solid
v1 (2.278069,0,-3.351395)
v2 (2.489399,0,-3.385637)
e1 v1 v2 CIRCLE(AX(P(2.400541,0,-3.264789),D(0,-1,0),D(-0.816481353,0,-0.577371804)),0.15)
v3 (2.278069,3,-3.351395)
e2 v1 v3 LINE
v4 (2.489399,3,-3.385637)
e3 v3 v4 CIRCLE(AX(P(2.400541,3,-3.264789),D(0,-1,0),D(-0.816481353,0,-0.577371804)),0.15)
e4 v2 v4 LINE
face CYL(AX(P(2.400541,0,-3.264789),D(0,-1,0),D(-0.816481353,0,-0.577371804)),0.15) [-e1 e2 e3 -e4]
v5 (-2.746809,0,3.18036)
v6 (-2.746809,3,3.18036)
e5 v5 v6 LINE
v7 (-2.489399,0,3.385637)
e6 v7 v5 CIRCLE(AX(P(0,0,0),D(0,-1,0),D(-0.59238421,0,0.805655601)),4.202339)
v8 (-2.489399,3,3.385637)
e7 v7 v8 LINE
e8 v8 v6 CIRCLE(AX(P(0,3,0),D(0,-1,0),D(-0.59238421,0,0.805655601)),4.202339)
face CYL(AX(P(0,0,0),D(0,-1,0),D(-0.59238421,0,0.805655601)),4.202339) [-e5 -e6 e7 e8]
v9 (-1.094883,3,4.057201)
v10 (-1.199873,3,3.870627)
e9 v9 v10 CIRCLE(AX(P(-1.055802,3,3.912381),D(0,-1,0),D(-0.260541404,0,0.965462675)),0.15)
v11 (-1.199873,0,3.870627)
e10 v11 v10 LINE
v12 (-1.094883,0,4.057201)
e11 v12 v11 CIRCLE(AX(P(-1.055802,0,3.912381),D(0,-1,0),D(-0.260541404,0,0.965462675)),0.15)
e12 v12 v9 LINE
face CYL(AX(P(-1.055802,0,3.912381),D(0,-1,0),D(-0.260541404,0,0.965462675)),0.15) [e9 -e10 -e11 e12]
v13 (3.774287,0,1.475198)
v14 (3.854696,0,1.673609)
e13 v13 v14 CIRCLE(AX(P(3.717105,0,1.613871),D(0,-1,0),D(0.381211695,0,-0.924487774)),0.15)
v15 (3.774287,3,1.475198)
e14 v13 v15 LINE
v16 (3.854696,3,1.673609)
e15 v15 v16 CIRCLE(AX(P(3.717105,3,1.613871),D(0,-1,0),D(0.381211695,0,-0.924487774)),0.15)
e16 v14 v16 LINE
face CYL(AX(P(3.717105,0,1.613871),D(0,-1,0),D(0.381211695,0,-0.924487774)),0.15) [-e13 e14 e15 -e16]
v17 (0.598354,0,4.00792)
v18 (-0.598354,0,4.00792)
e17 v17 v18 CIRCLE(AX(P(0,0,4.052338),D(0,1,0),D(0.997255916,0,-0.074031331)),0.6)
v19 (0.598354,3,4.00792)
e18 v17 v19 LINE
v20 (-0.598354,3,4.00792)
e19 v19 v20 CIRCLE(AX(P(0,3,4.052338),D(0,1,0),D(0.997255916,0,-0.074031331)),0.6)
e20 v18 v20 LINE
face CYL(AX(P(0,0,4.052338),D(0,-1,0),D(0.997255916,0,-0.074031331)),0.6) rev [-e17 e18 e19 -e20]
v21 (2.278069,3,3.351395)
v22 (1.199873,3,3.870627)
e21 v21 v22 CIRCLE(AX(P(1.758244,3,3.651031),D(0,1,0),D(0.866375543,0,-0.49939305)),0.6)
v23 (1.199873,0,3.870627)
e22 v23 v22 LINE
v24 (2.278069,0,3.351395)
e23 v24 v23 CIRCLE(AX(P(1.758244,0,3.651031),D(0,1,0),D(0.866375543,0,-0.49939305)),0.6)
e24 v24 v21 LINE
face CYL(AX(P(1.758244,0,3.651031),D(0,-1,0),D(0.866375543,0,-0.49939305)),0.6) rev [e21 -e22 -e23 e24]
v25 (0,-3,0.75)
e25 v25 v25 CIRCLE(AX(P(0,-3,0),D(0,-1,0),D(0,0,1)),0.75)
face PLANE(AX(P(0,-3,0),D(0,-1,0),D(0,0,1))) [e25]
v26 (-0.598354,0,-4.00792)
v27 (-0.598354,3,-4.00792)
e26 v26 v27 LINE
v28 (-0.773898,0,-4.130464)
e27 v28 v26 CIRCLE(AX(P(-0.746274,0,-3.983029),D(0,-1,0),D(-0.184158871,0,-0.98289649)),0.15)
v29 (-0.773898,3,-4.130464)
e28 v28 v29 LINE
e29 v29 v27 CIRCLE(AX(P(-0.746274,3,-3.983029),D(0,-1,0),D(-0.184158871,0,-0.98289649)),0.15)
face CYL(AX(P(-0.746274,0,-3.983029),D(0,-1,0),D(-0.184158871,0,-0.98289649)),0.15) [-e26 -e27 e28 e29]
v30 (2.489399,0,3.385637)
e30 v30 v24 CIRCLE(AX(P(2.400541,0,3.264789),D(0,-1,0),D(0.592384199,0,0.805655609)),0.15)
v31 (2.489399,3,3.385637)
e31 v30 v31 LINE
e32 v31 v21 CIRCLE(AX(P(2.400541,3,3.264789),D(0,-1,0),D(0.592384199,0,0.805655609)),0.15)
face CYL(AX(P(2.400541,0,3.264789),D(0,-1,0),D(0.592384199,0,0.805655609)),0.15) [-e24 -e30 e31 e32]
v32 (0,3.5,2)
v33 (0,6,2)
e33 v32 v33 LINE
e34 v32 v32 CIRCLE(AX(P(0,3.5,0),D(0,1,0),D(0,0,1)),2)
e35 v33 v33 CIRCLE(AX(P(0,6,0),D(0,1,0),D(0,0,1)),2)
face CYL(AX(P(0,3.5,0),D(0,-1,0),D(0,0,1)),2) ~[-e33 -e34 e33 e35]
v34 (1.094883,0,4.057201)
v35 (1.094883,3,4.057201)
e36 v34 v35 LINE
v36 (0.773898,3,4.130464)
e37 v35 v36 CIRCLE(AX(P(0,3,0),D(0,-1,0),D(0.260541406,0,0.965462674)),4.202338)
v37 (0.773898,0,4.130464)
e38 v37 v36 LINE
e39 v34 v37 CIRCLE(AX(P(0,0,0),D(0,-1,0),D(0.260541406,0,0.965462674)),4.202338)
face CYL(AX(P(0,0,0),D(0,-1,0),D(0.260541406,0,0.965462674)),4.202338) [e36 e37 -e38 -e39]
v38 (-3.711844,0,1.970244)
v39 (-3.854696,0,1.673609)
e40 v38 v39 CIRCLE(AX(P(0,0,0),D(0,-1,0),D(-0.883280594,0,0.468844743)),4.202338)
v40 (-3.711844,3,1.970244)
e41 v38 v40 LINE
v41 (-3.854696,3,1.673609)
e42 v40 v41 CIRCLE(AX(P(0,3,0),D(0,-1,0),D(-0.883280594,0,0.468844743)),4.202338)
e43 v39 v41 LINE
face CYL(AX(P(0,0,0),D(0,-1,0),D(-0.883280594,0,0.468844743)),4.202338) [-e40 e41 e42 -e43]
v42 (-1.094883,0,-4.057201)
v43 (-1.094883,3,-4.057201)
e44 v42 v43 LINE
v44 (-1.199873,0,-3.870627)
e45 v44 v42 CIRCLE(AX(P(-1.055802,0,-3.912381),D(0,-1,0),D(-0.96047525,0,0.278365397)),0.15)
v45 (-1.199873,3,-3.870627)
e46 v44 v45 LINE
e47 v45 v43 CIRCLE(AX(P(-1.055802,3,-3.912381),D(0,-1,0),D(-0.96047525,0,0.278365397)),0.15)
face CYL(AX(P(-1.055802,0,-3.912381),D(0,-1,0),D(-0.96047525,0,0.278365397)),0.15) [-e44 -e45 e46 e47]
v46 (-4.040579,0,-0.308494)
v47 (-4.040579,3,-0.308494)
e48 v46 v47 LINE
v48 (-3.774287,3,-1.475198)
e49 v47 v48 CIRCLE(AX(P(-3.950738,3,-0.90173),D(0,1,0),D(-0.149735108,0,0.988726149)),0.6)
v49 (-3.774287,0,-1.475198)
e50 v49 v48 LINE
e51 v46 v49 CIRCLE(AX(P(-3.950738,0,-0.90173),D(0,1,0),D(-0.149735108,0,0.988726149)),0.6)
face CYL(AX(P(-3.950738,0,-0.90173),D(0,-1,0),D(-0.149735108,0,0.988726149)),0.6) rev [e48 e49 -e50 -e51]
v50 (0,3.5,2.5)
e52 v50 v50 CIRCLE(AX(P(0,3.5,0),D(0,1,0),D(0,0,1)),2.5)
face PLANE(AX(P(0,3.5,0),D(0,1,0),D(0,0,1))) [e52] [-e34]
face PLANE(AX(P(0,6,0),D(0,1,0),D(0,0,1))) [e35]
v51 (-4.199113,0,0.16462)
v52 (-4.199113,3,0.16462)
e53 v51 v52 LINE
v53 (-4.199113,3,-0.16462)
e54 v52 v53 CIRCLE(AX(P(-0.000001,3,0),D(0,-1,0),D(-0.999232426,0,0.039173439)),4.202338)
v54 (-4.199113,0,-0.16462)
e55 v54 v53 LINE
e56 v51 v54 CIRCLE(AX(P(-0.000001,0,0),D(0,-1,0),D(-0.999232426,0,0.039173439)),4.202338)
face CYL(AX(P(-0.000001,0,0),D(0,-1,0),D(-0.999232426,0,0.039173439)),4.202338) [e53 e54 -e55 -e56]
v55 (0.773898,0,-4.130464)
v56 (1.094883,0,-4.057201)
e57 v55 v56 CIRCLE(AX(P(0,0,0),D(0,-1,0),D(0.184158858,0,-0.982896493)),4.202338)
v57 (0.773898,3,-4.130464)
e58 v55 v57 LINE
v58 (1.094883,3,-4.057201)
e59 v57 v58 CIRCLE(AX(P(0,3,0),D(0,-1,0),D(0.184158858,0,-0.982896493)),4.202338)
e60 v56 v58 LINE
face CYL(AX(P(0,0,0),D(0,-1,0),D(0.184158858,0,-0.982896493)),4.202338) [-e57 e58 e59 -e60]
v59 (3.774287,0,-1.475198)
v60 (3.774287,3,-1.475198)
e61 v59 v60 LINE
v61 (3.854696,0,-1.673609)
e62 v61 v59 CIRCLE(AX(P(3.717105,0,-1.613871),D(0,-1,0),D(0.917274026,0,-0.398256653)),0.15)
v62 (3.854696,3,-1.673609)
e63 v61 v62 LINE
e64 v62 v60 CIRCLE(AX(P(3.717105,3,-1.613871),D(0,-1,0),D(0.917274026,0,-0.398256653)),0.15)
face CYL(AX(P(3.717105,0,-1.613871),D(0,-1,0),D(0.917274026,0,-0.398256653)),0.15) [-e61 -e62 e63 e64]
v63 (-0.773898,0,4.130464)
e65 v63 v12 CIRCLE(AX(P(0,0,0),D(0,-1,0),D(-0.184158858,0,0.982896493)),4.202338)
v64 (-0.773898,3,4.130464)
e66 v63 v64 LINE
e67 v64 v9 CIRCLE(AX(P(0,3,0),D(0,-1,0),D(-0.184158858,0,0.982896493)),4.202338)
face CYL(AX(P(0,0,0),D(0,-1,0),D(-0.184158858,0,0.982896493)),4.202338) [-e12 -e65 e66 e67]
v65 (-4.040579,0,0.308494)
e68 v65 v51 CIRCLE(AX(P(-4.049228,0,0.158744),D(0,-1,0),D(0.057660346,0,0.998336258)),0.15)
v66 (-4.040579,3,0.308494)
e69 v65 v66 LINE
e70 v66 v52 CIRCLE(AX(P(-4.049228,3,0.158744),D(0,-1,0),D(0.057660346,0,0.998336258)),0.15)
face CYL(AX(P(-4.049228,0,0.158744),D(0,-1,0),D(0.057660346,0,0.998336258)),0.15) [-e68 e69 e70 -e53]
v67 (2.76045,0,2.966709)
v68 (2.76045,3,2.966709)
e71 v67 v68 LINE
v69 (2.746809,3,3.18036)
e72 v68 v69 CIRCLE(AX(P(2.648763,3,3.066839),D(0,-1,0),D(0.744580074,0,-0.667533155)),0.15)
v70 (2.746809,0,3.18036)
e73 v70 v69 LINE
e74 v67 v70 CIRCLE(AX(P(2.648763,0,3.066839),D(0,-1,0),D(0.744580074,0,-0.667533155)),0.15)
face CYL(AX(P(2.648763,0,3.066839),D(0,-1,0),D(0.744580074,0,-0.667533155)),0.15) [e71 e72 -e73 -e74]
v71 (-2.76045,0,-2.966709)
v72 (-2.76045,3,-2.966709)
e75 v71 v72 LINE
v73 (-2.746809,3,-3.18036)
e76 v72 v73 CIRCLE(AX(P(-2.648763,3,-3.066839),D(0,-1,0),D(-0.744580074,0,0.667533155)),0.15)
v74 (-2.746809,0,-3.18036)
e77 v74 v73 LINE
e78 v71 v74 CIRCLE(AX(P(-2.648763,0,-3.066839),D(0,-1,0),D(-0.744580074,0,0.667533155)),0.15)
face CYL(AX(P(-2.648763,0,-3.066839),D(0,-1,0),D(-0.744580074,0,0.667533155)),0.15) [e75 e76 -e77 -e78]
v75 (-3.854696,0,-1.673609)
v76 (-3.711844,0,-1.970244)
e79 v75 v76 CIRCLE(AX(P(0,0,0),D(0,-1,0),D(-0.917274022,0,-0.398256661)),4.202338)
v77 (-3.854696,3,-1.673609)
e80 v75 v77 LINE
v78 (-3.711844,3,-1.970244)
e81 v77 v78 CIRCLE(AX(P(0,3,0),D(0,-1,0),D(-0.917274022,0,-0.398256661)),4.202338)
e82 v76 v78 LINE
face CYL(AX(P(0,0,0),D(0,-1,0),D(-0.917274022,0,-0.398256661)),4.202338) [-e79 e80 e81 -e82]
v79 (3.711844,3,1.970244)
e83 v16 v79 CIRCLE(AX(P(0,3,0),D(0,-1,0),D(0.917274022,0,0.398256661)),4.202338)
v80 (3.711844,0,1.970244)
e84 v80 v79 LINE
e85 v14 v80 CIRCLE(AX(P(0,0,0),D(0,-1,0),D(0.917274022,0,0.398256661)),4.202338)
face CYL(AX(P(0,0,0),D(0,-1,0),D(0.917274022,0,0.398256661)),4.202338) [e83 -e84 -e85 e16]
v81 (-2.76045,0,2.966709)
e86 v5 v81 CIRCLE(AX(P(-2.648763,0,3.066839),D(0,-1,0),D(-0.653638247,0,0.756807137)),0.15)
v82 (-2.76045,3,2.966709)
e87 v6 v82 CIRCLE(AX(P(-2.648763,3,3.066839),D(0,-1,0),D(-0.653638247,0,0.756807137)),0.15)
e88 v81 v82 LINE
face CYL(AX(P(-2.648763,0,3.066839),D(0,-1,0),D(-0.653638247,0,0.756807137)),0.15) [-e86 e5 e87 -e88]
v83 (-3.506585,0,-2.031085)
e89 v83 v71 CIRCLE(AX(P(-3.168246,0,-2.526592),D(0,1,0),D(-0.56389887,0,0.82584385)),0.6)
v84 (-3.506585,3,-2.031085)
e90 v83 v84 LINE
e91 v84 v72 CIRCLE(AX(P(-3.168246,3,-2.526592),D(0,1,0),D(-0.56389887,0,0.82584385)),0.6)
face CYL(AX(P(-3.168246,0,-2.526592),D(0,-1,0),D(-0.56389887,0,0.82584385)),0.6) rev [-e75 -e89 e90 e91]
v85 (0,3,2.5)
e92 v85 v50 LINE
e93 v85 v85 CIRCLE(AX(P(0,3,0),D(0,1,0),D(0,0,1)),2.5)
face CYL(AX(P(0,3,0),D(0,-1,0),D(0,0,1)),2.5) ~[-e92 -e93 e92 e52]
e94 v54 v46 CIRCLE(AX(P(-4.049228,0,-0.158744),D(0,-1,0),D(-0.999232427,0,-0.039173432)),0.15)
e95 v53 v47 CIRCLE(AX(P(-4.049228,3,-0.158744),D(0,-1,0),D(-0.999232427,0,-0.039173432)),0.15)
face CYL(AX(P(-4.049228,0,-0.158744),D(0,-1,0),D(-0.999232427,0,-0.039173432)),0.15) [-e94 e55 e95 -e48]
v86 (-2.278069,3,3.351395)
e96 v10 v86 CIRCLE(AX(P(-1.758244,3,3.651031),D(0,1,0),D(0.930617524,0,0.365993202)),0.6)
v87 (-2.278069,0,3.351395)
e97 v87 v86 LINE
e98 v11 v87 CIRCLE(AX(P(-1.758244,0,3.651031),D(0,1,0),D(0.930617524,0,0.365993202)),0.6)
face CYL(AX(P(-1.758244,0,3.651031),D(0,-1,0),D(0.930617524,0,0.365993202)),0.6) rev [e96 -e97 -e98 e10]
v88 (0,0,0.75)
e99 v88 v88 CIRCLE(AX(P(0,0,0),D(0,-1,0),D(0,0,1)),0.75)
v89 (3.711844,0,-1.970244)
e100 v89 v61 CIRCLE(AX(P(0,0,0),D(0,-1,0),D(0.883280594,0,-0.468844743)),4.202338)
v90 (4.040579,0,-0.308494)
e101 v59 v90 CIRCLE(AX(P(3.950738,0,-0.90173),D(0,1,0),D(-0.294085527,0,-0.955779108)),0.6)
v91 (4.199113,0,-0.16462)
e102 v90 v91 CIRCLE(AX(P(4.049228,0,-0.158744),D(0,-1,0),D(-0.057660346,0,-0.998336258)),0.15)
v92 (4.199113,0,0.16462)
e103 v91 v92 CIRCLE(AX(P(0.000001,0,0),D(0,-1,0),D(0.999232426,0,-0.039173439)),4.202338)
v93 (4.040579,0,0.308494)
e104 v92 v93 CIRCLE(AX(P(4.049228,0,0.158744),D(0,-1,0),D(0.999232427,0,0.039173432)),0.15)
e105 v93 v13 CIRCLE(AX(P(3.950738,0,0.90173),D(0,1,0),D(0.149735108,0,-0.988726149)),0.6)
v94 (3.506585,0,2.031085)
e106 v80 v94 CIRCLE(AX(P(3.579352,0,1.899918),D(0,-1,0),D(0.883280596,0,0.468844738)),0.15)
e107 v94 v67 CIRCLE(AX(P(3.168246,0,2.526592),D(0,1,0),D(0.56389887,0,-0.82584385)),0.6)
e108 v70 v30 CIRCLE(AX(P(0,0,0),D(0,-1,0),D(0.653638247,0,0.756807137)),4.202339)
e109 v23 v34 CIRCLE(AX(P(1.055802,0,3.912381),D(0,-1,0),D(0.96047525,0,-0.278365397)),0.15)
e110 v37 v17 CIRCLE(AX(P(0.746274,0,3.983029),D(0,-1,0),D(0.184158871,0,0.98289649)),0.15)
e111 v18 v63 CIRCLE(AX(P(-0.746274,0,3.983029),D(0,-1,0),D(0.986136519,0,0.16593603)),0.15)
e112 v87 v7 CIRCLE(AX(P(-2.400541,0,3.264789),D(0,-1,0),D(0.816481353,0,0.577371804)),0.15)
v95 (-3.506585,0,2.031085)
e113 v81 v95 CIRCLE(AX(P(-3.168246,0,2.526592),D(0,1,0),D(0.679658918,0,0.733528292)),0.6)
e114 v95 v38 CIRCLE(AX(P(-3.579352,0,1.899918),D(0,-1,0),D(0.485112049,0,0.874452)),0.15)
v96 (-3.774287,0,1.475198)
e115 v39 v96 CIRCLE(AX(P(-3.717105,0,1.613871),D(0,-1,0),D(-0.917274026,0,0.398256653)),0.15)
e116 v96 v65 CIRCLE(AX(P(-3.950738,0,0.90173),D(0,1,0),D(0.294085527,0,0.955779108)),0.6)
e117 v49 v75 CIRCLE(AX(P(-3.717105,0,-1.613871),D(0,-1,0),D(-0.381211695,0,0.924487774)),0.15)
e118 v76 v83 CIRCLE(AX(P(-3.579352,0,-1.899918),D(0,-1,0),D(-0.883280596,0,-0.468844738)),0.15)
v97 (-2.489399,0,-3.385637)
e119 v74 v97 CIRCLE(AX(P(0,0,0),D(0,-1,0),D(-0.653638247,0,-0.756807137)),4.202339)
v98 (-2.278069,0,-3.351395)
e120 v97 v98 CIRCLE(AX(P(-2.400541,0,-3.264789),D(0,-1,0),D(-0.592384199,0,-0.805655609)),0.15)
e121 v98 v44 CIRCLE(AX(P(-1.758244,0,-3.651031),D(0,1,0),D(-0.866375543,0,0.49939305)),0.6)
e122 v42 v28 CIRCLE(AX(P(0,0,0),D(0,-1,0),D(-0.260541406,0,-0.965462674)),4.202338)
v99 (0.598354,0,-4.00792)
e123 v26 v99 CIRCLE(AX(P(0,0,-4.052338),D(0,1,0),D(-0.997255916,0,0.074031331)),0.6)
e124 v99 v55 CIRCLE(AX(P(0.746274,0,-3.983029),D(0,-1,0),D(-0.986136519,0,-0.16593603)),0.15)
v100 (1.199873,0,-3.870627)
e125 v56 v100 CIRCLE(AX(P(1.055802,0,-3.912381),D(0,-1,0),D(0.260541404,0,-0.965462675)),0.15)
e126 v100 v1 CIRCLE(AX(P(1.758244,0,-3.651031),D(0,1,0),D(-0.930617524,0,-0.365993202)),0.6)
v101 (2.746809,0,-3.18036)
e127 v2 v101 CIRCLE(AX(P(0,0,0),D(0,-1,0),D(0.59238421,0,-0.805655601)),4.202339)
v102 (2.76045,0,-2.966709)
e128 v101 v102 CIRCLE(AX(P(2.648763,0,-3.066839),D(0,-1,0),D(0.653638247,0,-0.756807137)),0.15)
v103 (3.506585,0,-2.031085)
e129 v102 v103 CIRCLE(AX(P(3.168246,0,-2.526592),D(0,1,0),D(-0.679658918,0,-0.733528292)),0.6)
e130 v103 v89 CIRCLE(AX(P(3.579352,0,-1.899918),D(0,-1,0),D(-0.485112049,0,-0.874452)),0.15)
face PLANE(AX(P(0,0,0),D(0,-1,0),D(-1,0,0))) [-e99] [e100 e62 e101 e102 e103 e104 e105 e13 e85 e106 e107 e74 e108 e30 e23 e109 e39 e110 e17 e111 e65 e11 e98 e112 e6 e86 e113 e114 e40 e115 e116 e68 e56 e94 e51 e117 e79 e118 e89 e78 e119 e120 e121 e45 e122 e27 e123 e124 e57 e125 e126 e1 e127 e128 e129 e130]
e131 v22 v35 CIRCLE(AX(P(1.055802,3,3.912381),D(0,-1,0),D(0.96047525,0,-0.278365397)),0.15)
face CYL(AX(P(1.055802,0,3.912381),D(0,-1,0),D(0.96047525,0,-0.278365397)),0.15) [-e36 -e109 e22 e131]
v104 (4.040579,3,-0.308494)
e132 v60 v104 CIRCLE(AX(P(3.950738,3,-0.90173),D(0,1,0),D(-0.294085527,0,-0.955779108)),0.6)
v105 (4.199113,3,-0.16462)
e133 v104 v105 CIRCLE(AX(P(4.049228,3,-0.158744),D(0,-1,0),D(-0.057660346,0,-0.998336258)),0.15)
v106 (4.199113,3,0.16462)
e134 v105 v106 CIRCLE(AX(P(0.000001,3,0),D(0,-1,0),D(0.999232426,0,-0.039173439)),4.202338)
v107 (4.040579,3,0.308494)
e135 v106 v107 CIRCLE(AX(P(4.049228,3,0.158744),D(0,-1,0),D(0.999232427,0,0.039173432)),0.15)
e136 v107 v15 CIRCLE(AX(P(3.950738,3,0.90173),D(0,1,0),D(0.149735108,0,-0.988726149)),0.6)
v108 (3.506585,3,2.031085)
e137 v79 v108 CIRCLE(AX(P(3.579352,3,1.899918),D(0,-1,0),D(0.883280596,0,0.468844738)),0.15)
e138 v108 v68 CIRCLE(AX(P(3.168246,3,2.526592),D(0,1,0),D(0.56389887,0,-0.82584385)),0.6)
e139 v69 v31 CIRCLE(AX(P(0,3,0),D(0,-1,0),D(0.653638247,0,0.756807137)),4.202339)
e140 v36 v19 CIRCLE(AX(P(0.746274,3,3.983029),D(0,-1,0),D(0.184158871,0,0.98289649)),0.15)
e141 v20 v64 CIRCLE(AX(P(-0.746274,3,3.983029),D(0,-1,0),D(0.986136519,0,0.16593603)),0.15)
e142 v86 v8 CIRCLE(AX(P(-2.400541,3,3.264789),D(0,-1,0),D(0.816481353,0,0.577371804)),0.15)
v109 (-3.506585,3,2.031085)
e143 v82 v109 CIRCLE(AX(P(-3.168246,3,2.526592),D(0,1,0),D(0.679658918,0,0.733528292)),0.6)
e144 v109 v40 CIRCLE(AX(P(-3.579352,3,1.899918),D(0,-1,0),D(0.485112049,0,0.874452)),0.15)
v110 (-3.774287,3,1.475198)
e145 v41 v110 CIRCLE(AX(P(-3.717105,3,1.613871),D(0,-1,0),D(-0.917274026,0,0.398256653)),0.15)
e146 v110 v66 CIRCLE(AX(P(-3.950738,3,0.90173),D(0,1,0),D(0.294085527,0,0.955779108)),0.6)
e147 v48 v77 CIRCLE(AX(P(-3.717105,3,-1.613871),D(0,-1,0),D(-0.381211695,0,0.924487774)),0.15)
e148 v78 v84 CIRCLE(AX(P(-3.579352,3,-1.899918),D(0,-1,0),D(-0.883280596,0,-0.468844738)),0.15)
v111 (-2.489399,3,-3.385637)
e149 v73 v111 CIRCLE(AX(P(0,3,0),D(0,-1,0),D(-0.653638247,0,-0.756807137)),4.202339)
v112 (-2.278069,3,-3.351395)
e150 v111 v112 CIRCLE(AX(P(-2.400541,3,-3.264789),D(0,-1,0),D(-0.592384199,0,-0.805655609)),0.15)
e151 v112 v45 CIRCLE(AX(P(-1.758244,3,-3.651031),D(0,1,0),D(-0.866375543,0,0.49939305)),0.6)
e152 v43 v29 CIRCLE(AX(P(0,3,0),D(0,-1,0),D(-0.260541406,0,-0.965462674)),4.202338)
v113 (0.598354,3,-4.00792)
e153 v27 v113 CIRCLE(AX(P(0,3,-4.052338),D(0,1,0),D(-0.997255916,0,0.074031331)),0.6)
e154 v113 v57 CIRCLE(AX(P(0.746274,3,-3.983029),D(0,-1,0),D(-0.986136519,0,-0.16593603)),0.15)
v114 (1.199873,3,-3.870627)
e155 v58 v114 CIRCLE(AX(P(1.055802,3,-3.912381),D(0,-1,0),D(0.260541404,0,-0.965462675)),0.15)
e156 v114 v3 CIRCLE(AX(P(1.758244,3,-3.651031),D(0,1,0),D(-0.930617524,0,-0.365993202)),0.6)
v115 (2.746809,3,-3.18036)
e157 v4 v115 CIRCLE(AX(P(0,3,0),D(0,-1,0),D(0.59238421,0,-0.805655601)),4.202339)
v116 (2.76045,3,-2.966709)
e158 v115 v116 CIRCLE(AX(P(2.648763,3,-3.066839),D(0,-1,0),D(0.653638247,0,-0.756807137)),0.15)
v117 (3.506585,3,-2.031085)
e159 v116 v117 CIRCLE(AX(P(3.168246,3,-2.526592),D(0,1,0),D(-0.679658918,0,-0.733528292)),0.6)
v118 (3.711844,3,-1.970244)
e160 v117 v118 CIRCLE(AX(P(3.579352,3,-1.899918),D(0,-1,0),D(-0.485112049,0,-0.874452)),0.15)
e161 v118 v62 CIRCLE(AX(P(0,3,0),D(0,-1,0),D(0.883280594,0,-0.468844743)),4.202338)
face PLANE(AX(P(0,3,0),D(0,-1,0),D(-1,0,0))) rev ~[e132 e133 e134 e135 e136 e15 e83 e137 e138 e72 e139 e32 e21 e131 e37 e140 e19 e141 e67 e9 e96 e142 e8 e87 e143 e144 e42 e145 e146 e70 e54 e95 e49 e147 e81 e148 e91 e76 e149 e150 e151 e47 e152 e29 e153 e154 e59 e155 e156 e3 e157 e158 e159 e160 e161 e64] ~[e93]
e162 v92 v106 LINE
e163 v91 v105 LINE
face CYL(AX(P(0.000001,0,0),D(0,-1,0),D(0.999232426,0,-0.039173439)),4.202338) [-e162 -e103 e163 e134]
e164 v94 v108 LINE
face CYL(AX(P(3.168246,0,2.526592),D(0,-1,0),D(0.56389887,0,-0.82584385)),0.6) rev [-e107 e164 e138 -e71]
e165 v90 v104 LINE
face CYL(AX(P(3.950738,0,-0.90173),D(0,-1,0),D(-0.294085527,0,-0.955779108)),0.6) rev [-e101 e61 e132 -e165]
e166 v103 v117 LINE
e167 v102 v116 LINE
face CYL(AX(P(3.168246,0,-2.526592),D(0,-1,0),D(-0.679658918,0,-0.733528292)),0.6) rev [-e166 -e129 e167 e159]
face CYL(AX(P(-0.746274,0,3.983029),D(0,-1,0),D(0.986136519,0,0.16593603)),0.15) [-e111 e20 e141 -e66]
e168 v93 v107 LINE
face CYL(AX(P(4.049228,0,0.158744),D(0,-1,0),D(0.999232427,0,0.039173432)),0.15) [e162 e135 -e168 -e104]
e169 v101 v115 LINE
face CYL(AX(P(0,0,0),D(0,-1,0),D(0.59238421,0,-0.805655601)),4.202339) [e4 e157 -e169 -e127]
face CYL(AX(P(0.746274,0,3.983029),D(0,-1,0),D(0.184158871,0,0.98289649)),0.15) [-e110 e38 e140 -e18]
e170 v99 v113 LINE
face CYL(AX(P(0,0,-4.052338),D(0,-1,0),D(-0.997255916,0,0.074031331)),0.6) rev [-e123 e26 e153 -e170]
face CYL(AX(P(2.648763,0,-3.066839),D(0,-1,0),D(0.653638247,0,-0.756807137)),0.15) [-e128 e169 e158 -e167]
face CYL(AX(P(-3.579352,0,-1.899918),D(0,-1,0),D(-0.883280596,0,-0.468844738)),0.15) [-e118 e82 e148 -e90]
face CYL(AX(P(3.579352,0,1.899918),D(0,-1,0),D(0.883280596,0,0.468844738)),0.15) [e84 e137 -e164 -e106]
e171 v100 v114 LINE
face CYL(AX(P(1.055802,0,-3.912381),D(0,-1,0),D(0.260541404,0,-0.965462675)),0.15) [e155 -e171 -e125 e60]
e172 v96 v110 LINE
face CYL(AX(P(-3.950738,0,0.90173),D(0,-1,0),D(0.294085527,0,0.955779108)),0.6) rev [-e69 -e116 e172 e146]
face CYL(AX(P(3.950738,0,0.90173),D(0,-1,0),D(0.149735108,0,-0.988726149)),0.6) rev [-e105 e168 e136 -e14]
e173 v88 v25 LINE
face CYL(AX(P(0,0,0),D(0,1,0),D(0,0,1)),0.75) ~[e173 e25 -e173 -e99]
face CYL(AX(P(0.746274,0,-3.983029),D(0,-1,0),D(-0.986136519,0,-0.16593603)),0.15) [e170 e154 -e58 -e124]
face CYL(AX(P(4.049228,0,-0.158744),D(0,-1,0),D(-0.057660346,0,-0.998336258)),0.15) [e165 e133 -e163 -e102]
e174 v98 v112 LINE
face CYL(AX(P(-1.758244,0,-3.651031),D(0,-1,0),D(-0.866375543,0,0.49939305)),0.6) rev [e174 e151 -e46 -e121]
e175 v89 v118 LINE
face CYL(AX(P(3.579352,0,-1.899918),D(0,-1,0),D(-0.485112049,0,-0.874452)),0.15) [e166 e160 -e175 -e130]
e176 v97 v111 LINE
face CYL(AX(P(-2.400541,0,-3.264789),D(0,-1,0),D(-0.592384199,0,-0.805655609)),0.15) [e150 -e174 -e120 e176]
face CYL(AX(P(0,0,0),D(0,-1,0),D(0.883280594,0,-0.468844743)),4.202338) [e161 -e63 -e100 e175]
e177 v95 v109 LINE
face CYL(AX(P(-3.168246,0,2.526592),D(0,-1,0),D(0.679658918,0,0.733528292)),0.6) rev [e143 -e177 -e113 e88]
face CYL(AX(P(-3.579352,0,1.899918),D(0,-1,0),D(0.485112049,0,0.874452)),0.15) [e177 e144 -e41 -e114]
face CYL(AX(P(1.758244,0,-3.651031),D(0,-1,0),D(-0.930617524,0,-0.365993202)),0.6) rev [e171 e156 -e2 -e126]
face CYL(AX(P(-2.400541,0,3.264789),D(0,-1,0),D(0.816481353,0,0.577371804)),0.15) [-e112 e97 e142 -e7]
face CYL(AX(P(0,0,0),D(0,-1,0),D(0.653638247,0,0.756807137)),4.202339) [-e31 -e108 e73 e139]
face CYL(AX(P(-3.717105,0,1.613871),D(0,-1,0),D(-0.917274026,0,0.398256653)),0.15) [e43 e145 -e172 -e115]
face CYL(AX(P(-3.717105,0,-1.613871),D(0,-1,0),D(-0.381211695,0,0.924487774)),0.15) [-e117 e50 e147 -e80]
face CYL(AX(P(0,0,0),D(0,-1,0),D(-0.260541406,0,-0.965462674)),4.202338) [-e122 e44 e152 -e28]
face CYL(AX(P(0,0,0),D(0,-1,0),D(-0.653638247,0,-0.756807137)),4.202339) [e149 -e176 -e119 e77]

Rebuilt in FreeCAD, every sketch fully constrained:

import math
import FreeCAD as App
import Part
import Sketcher
from FreeCAD import Vector

doc = App.newDocument("Part")
body = doc.addObject("PartDesign::Body", "Body")

# Sketch on XZ plane
sketch1 = doc.addObject("Sketcher::SketchObject", "Sketch")
body.addObject(sketch1)
sketch1.AttachmentSupport = (doc.XZ_Plane, [""])
sketch1.MapMode = "FlatFace"
sketch1.addGeometry([
    Part.ArcOfCircle(Part.Circle(Vector(0.746274, -3.983029, 0), Vector(0, 0, 1), 0.15), math.radians(-170.448385), math.radians(-79.387903)),  # 0
    Part.ArcOfCircle(Part.Circle(Vector(0, -4.052338, 0), Vector(0, 0, 1), 0.6), math.radians(4.245567), math.radians(175.754433)),  # 1
    Part.ArcOfCircle(Part.Circle(Vector(-0.746274, -3.983029, 0), Vector(0, 0, 1), 0.15), math.radians(-100.612097), math.radians(-9.551615)),  # 2
    Part.ArcOfCircle(Part.Circle(Vector(0, 0, 0), Vector(0, 0, 1), 4.202338), math.radians(-105.10219), math.radians(-100.612096)),  # 3
    Part.ArcOfCircle(Part.Circle(Vector(-1.055802, -3.912381, 0), Vector(0, 0, 1), 0.15), math.radians(163.837329), math.radians(254.89781)),  # 4
    Part.ArcOfCircle(Part.Circle(Vector(-1.758244, -3.651031, 0), Vector(0, 0, 1), 0.6), math.radians(-21.468719), math.radians(150.040147)),  # 5
    Part.ArcOfCircle(Part.Circle(Vector(-2.400541, -3.264789, 0), Vector(0, 0, 1), 0.15), math.radians(-126.326381), math.radians(-35.265901)),  # 6
    Part.ArcOfCircle(Part.Circle(Vector(0, 0, 0), Vector(0, 0, 1), 4.202339), math.radians(-130.816475), math.radians(-126.326382)),  # 7
    Part.ArcOfCircle(Part.Circle(Vector(-2.648763, -3.066839, 0), Vector(0, 0, 1), 0.15), math.radians(138.123043), math.radians(229.183525)),  # 8
    Part.ArcOfCircle(Part.Circle(Vector(-3.168246, -2.526592, 0), Vector(0, 0, 1), 0.6), math.radians(-47.183005), math.radians(124.325862)),  # 9
    Part.ArcOfCircle(Part.Circle(Vector(-3.579352, -1.899918, 0), Vector(0, 0, 1), 0.15), math.radians(-152.040668), math.radians(-60.980186)),  # 10
    Part.ArcOfCircle(Part.Circle(Vector(0, 0, 0), Vector(0, 0, 1), 4.202338), math.radians(-156.530761), math.radians(-152.040668)),  # 11
    Part.ArcOfCircle(Part.Circle(Vector(-3.717105, -1.613871, 0), Vector(0, 0, 1), 0.15), math.radians(112.408758), math.radians(203.469238)),  # 12
    Part.ArcOfCircle(Part.Circle(Vector(-3.950738, -0.90173, 0), Vector(0, 0, 1), 0.6), math.radians(-72.89729), math.radians(98.611576)),  # 13
    Part.ArcOfCircle(Part.Circle(Vector(-4.049228, -0.158744, 0), Vector(0, 0, 1), 0.15), math.radians(-177.754953), math.radians(-86.694472)),  # 14
    Part.ArcOfCircle(Part.Circle(Vector(-0.000001, 0, 0), Vector(0, 0, 1), 4.202338), math.radians(177.754953), math.radians(182.245047)),  # 15
    Part.ArcOfCircle(Part.Circle(Vector(-4.049228, 0.158744, 0), Vector(0, 0, 1), 0.15), math.radians(86.694472), math.radians(177.754953)),  # 16
    Part.ArcOfCircle(Part.Circle(Vector(-3.950738, 0.90173, 0), Vector(0, 0, 1), 0.6), math.radians(-98.611576), math.radians(72.89729)),  # 17
    Part.ArcOfCircle(Part.Circle(Vector(-3.717105, 1.613871, 0), Vector(0, 0, 1), 0.15), math.radians(156.530762), math.radians(247.591242)),  # 18
    Part.ArcOfCircle(Part.Circle(Vector(0, 0, 0), Vector(0, 0, 1), 4.202338), math.radians(152.040668), math.radians(156.530761)),  # 19
    Part.ArcOfCircle(Part.Circle(Vector(-3.579352, 1.899918, 0), Vector(0, 0, 1), 0.15), math.radians(60.980186), math.radians(152.040668)),  # 20
    Part.ArcOfCircle(Part.Circle(Vector(-3.168246, 2.526592, 0), Vector(0, 0, 1), 0.6), math.radians(-124.325862), math.radians(47.183005)),  # 21
    Part.ArcOfCircle(Part.Circle(Vector(-2.648763, 3.066839, 0), Vector(0, 0, 1), 0.15), math.radians(130.816475), math.radians(221.876957)),  # 22
    Part.ArcOfCircle(Part.Circle(Vector(0, 0, 0), Vector(0, 0, 1), 4.202339), math.radians(126.326382), math.radians(130.816475)),  # 23
    Part.ArcOfCircle(Part.Circle(Vector(-2.400541, 3.264789, 0), Vector(0, 0, 1), 0.15), math.radians(35.265901), math.radians(126.326381)),  # 24
    Part.ArcOfCircle(Part.Circle(Vector(-1.758244, 3.651031, 0), Vector(0, 0, 1), 0.6), math.radians(-150.040147), math.radians(21.468719)),  # 25
    Part.ArcOfCircle(Part.Circle(Vector(-1.055802, 3.912381, 0), Vector(0, 0, 1), 0.15), math.radians(105.10219), math.radians(196.162671)),  # 26
    Part.ArcOfCircle(Part.Circle(Vector(0, 0, 0), Vector(0, 0, 1), 4.202338), math.radians(100.612096), math.radians(105.10219)),  # 27
    Part.ArcOfCircle(Part.Circle(Vector(-0.746274, 3.983029, 0), Vector(0, 0, 1), 0.15), math.radians(9.551615), math.radians(100.612097)),  # 28
    Part.ArcOfCircle(Part.Circle(Vector(0, 4.052338, 0), Vector(0, 0, 1), 0.6), math.radians(-175.754433), math.radians(-4.245567)),  # 29
    Part.ArcOfCircle(Part.Circle(Vector(0.746274, 3.983029, 0), Vector(0, 0, 1), 0.15), math.radians(79.387903), math.radians(170.448385)),  # 30
    Part.ArcOfCircle(Part.Circle(Vector(0, 0, 0), Vector(0, 0, 1), 4.202338), math.radians(74.89781), math.radians(79.387904)),  # 31
    Part.ArcOfCircle(Part.Circle(Vector(1.055802, 3.912381, 0), Vector(0, 0, 1), 0.15), math.radians(-16.162671), math.radians(74.89781)),  # 32
    Part.ArcOfCircle(Part.Circle(Vector(1.758244, 3.651031, 0), Vector(0, 0, 1), 0.6), math.radians(158.531281), math.radians(330.040147)),  # 33
    Part.ArcOfCircle(Part.Circle(Vector(2.400541, 3.264789, 0), Vector(0, 0, 1), 0.15), math.radians(53.673619), math.radians(144.734099)),  # 34
    Part.ArcOfCircle(Part.Circle(Vector(0, 0, 0), Vector(0, 0, 1), 4.202339), math.radians(49.183525), math.radians(53.673618)),  # 35
    Part.ArcOfCircle(Part.Circle(Vector(2.648763, 3.066839, 0), Vector(0, 0, 1), 0.15), math.radians(-41.876957), math.radians(49.183525)),  # 36
    Part.ArcOfCircle(Part.Circle(Vector(3.168246, 2.526592, 0), Vector(0, 0, 1), 0.6), math.radians(132.816995), math.radians(304.325862)),  # 37
    Part.ArcOfCircle(Part.Circle(Vector(3.579352, 1.899918, 0), Vector(0, 0, 1), 0.15), math.radians(27.959332), math.radians(119.019814)),  # 38
    Part.ArcOfCircle(Part.Circle(Vector(0, 0, 0), Vector(0, 0, 1), 4.202338), math.radians(23.469239), math.radians(27.959332)),  # 39
    Part.ArcOfCircle(Part.Circle(Vector(3.717105, 1.613871, 0), Vector(0, 0, 1), 0.15), math.radians(-67.591242), math.radians(23.469238)),  # 40
    Part.ArcOfCircle(Part.Circle(Vector(3.950738, 0.90173, 0), Vector(0, 0, 1), 0.6), math.radians(107.10271), math.radians(278.611576)),  # 41
    Part.ArcOfCircle(Part.Circle(Vector(4.049228, 0.158744, 0), Vector(0, 0, 1), 0.15), math.radians(2.245047), math.radians(93.305528)),  # 42
    Part.ArcOfCircle(Part.Circle(Vector(0.000001, 0, 0), Vector(0, 0, 1), 4.202338), math.radians(-2.245047), math.radians(2.245047)),  # 43
    Part.ArcOfCircle(Part.Circle(Vector(4.049228, -0.158744, 0), Vector(0, 0, 1), 0.15), math.radians(-93.305528), math.radians(-2.245047)),  # 44
    Part.ArcOfCircle(Part.Circle(Vector(3.950738, -0.90173, 0), Vector(0, 0, 1), 0.6), math.radians(81.388424), math.radians(252.89729)),  # 45
    Part.ArcOfCircle(Part.Circle(Vector(3.717105, -1.613871, 0), Vector(0, 0, 1), 0.15), math.radians(-23.469238), math.radians(67.591242)),  # 46
    Part.ArcOfCircle(Part.Circle(Vector(0, 0, 0), Vector(0, 0, 1), 4.202338), math.radians(-27.959332), math.radians(-23.469239)),  # 47
    Part.ArcOfCircle(Part.Circle(Vector(3.579352, -1.899918, 0), Vector(0, 0, 1), 0.15), math.radians(-119.019814), math.radians(-27.959332)),  # 48
    Part.ArcOfCircle(Part.Circle(Vector(3.168246, -2.526592, 0), Vector(0, 0, 1), 0.6), math.radians(55.674138), math.radians(227.183005)),  # 49
    Part.ArcOfCircle(Part.Circle(Vector(2.648763, -3.066839, 0), Vector(0, 0, 1), 0.15), math.radians(-49.183525), math.radians(41.876957)),  # 50
    Part.ArcOfCircle(Part.Circle(Vector(0, 0, 0), Vector(0, 0, 1), 4.202339), math.radians(-53.673618), math.radians(-49.183525)),  # 51
    Part.ArcOfCircle(Part.Circle(Vector(2.400541, -3.264789, 0), Vector(0, 0, 1), 0.15), math.radians(-144.734099), math.radians(-53.673619)),  # 52
    Part.ArcOfCircle(Part.Circle(Vector(1.758244, -3.651031, 0), Vector(0, 0, 1), 0.6), math.radians(29.959853), math.radians(201.468719)),  # 53
    Part.ArcOfCircle(Part.Circle(Vector(1.055802, -3.912381, 0), Vector(0, 0, 1), 0.15), math.radians(-74.89781), math.radians(16.162671)),  # 54
    Part.ArcOfCircle(Part.Circle(Vector(0, 0, 0), Vector(0, 0, 1), 4.202338), math.radians(-79.387904), math.radians(-74.89781)),  # 55
], False)
sketch1.addConstraint([
    Sketcher.Constraint("Coincident", 0, 1, 1, 1),
    Sketcher.Constraint("Coincident", 1, 2, 2, 2),
    Sketcher.Constraint("Coincident", 2, 1, 3, 2),
    Sketcher.Constraint("Coincident", 3, 1, 4, 2),
    Sketcher.Constraint("Coincident", 4, 1, 5, 1),
    Sketcher.Constraint("Coincident", 5, 2, 6, 2),
    Sketcher.Constraint("Coincident", 6, 1, 7, 2),
    Sketcher.Constraint("Coincident", 7, 1, 8, 2),
    Sketcher.Constraint("Coincident", 8, 1, 9, 1),
    Sketcher.Constraint("Coincident", 9, 2, 10, 2),
    Sketcher.Constraint("Coincident", 10, 1, 11, 2),
    Sketcher.Constraint("Coincident", 11, 1, 12, 2),
    Sketcher.Constraint("Coincident", 12, 1, 13, 1),
    Sketcher.Constraint("Coincident", 13, 2, 14, 2),
    Sketcher.Constraint("Coincident", 14, 1, 15, 2),
    Sketcher.Constraint("Coincident", 15, 1, 16, 2),
    Sketcher.Constraint("Coincident", 16, 1, 17, 1),
    Sketcher.Constraint("Coincident", 17, 2, 18, 2),
    Sketcher.Constraint("Coincident", 18, 1, 19, 2),
    Sketcher.Constraint("Coincident", 19, 1, 20, 2),
    Sketcher.Constraint("Coincident", 20, 1, 21, 1),
    Sketcher.Constraint("Coincident", 21, 2, 22, 2),
    Sketcher.Constraint("Coincident", 22, 1, 23, 2),
    Sketcher.Constraint("Coincident", 23, 1, 24, 2),
    Sketcher.Constraint("Coincident", 24, 1, 25, 1),
    Sketcher.Constraint("Coincident", 25, 2, 26, 2),
    Sketcher.Constraint("Coincident", 26, 1, 27, 2),
    Sketcher.Constraint("Coincident", 27, 1, 28, 2),
    Sketcher.Constraint("Coincident", 28, 1, 29, 1),
    Sketcher.Constraint("Coincident", 29, 2, 30, 2),
    Sketcher.Constraint("Coincident", 30, 1, 31, 2),
    Sketcher.Constraint("Coincident", 31, 1, 32, 2),
    Sketcher.Constraint("Coincident", 32, 1, 33, 1),
    Sketcher.Constraint("Coincident", 33, 2, 34, 2),
    Sketcher.Constraint("Coincident", 34, 1, 35, 2),
    Sketcher.Constraint("Coincident", 35, 1, 36, 2),
    Sketcher.Constraint("Coincident", 36, 1, 37, 1),
    Sketcher.Constraint("Coincident", 37, 2, 38, 2),
    Sketcher.Constraint("Coincident", 38, 1, 39, 2),
    Sketcher.Constraint("Coincident", 39, 1, 40, 2),
    Sketcher.Constraint("Coincident", 40, 1, 41, 1),
    Sketcher.Constraint("Coincident", 41, 2, 42, 2),
    Sketcher.Constraint("Coincident", 42, 1, 43, 2),
    Sketcher.Constraint("Coincident", 43, 1, 44, 2),
    Sketcher.Constraint("Coincident", 44, 1, 45, 1),
    Sketcher.Constraint("Coincident", 45, 2, 46, 2),
    Sketcher.Constraint("Coincident", 46, 1, 47, 2),
    Sketcher.Constraint("Coincident", 47, 1, 48, 2),
    Sketcher.Constraint("Coincident", 48, 1, 49, 1),
    Sketcher.Constraint("Coincident", 49, 2, 50, 2),
    Sketcher.Constraint("Coincident", 50, 1, 51, 2),
    Sketcher.Constraint("Coincident", 51, 1, 52, 2),
    Sketcher.Constraint("Coincident", 52, 1, 53, 1),
    Sketcher.Constraint("Coincident", 53, 2, 54, 2),
    Sketcher.Constraint("Coincident", 54, 1, 55, 2),
    Sketcher.Constraint("Coincident", 55, 1, 0, 2),
    Sketcher.Constraint("Coincident", 3, 3, -1, 1),
    Sketcher.Constraint("Coincident", 7, 3, -1, 1),
    Sketcher.Constraint("Coincident", 11, 3, -1, 1),
    Sketcher.Constraint("Coincident", 15, 3, -1, 1),
    Sketcher.Constraint("Coincident", 19, 3, -1, 1),
    Sketcher.Constraint("Coincident", 23, 3, -1, 1),
    Sketcher.Constraint("Coincident", 27, 3, -1, 1),
    Sketcher.Constraint("Coincident", 31, 3, -1, 1),
    Sketcher.Constraint("Coincident", 35, 3, -1, 1),
    Sketcher.Constraint("Coincident", 39, 3, -1, 1),
    Sketcher.Constraint("Coincident", 43, 3, -1, 1),
    Sketcher.Constraint("Coincident", 47, 3, -1, 1),
    Sketcher.Constraint("Coincident", 51, 3, -1, 1),
    Sketcher.Constraint("Coincident", 55, 3, -1, 1),
    Sketcher.Constraint("PointOnObject", 1, 3, -2),
    Sketcher.Constraint("PointOnObject", 29, 3, -2),
    Sketcher.Constraint("Radius", 1, 0.6),
    Sketcher.Constraint("Radius", 5, 0.6),
    Sketcher.Constraint("Radius", 9, 0.6),
    Sketcher.Constraint("Radius", 13, 0.6),
    Sketcher.Constraint("Radius", 17, 0.6),
    Sketcher.Constraint("Radius", 21, 0.6),
    Sketcher.Constraint("Radius", 25, 0.6),
    Sketcher.Constraint("Radius", 29, 0.6),
    Sketcher.Constraint("Radius", 33, 0.6),
    Sketcher.Constraint("Radius", 37, 0.6),
    Sketcher.Constraint("Radius", 41, 0.6),
    Sketcher.Constraint("Radius", 45, 0.6),
    Sketcher.Constraint("Radius", 49, 0.6),
    Sketcher.Constraint("Radius", 53, 0.6),
    Sketcher.Constraint("Radius", 0, 0.15),
    Sketcher.Constraint("Radius", 2, 0.15),
    Sketcher.Constraint("Radius", 4, 0.15),
    Sketcher.Constraint("Radius", 6, 0.15),
    Sketcher.Constraint("Radius", 8, 0.15),
    Sketcher.Constraint("Radius", 10, 0.15),
    Sketcher.Constraint("Radius", 12, 0.15),
    Sketcher.Constraint("Radius", 14, 0.15),
    Sketcher.Constraint("Radius", 16, 0.15),
    Sketcher.Constraint("Radius", 18, 0.15),
    Sketcher.Constraint("Radius", 20, 0.15),
    Sketcher.Constraint("Radius", 22, 0.15),
    Sketcher.Constraint("Radius", 24, 0.15),
    Sketcher.Constraint("Radius", 26, 0.15),
    Sketcher.Constraint("Radius", 28, 0.15),
    Sketcher.Constraint("Radius", 30, 0.15),
    Sketcher.Constraint("Radius", 32, 0.15),
    Sketcher.Constraint("Radius", 34, 0.15),
    Sketcher.Constraint("Radius", 36, 0.15),
    Sketcher.Constraint("Radius", 38, 0.15),
    Sketcher.Constraint("Radius", 40, 0.15),
    Sketcher.Constraint("Radius", 42, 0.15),
    Sketcher.Constraint("Radius", 44, 0.15),
    Sketcher.Constraint("Radius", 46, 0.15),
    Sketcher.Constraint("Radius", 48, 0.15),
    Sketcher.Constraint("Radius", 50, 0.15),
    Sketcher.Constraint("Radius", 52, 0.15),
    Sketcher.Constraint("Radius", 54, 0.15),
    Sketcher.Constraint("Radius", 3, 4.202338),
    Sketcher.Constraint("Radius", 7, 4.202339),
    Sketcher.Constraint("Radius", 11, 4.202338),
    Sketcher.Constraint("Radius", 19, 4.202338),
    Sketcher.Constraint("Radius", 23, 4.202339),
    Sketcher.Constraint("Radius", 27, 4.202338),
    Sketcher.Constraint("Radius", 31, 4.202338),
    Sketcher.Constraint("Radius", 35, 4.202339),
    Sketcher.Constraint("Radius", 39, 4.202338),
    Sketcher.Constraint("Radius", 47, 4.202338),
    Sketcher.Constraint("Radius", 51, 4.202339),
    Sketcher.Constraint("Radius", 55, 4.202338),
    Sketcher.Constraint("Radius", 15, 4.202338),
    Sketcher.Constraint("Radius", 43, 4.202338),
    Sketcher.Constraint("DistanceX", 4, 3, -1, 1, 1.055802),
    Sketcher.Constraint("DistanceX", 26, 3, -1, 1, 1.055802),
    Sketcher.Constraint("DistanceX", -1, 1, 32, 3, 1.055802),
    Sketcher.Constraint("DistanceX", -1, 1, 54, 3, 1.055802),
    Sketcher.Constraint("DistanceY", 3, 1, -1, 1, 4.057201),
    Sketcher.Constraint("DistanceX", 6, 1, -1, 1, 2.489399),
    Sketcher.Constraint("DistanceX", 23, 1, -1, 1, 2.489399),
    Sketcher.Constraint("DistanceY", -1, 1, 26, 1, 4.057201),
    Sketcher.Constraint("DistanceY", -1, 1, 31, 1, 4.057201),
    Sketcher.Constraint("DistanceX", -1, 1, 34, 1, 2.489399),
    Sketcher.Constraint("DistanceX", -1, 1, 51, 1, 2.489399),
    Sketcher.Constraint("DistanceY", 54, 1, -1, 1, 4.057201),
    Sketcher.Constraint("DistanceY", 0, 3, -1, 1, 3.983029),
    Sketcher.Constraint("DistanceY", 1, 3, -1, 1, 4.052338),
    Sketcher.Constraint("DistanceY", 2, 3, -1, 1, 3.983029),
    Sketcher.Constraint("DistanceY", 5, 3, -1, 1, 3.651031),
    Sketcher.Constraint("DistanceX", 6, 3, -1, 1, 2.400541),
    Sketcher.Constraint("DistanceY", 8, 3, -1, 1, 3.066839),
    Sketcher.Constraint("DistanceY", 9, 3, -1, 1, 2.526592),
    Sketcher.Constraint("DistanceX", 10, 3, -1, 1, 3.579352),
    Sketcher.Constraint("DistanceY", 12, 3, -1, 1, 1.613871),
    Sketcher.Constraint("DistanceY", 13, 3, -1, 1, 0.90173),
    Sketcher.Constraint("DistanceY", -1, 1, 17, 3, 0.90173),
    Sketcher.Constraint("DistanceY", -1, 1, 18, 3, 1.613871),
    Sketcher.Constraint("DistanceX", 20, 3, -1, 1, 3.579352),
    Sketcher.Constraint("DistanceY", -1, 1, 21, 3, 2.526592),
    Sketcher.Constraint("DistanceY", -1, 1, 22, 3, 3.066839),
    Sketcher.Constraint("DistanceX", 24, 3, -1, 1, 2.400541),
    Sketcher.Constraint("DistanceY", -1, 1, 25, 3, 3.651031),
    Sketcher.Constraint("DistanceY", -1, 1, 28, 3, 3.983029),
    Sketcher.Constraint("DistanceY", -1, 1, 29, 3, 4.052338),
    Sketcher.Constraint("DistanceY", -1, 1, 30, 3, 3.983029),
    Sketcher.Constraint("DistanceY", -1, 1, 33, 3, 3.651031),
    Sketcher.Constraint("DistanceX", -1, 1, 34, 3, 2.400541),
    Sketcher.Constraint("DistanceY", -1, 1, 36, 3, 3.066839),
    Sketcher.Constraint("DistanceY", -1, 1, 37, 3, 2.526592),
    Sketcher.Constraint("DistanceX", -1, 1, 38, 3, 3.579352),
    Sketcher.Constraint("DistanceY", -1, 1, 40, 3, 1.613871),
    Sketcher.Constraint("DistanceY", -1, 1, 41, 3, 0.90173),
    Sketcher.Constraint("DistanceY", 45, 3, -1, 1, 0.90173),
    Sketcher.Constraint("DistanceY", 46, 3, -1, 1, 1.613871),
    Sketcher.Constraint("DistanceX", -1, 1, 48, 3, 3.579352),
    Sketcher.Constraint("DistanceY", 49, 3, -1, 1, 2.526592),
    Sketcher.Constraint("DistanceY", 50, 3, -1, 1, 3.066839),
    Sketcher.Constraint("DistanceX", -1, 1, 52, 3, 2.400541),
    Sketcher.Constraint("DistanceY", 53, 3, -1, 1, 3.651031),
    Sketcher.Constraint("DistanceX", 5, 2, -1, 1, 2.278069),
    Sketcher.Constraint("DistanceX", 7, 1, -1, 1, 2.746809),
    Sketcher.Constraint("DistanceX", 8, 1, -1, 1, 2.76045),
    Sketcher.Constraint("DistanceY", 11, 1, -1, 1, 1.673609),
    Sketcher.Constraint("DistanceX", 13, 2, -1, 1, 4.040579),
    Sketcher.Constraint("DistanceY", 14, 1, -1, 1, 0.16462),
    Sketcher.Constraint("DistanceY", -1, 1, 15, 1, 0.16462),
    Sketcher.Constraint("DistanceX", 16, 1, -1, 1, 4.040579),
    Sketcher.Constraint("DistanceY", -1, 1, 18, 1, 1.673609),
    Sketcher.Constraint("DistanceX", 21, 2, -1, 1, 2.76045),
    Sketcher.Constraint("DistanceX", 22, 1, -1, 1, 2.746809),
    Sketcher.Constraint("DistanceX", 24, 1, -1, 1, 2.278069),
    Sketcher.Constraint("DistanceX", -1, 1, 33, 2, 2.278069),
    Sketcher.Constraint("DistanceX", -1, 1, 35, 1, 2.746809),
    Sketcher.Constraint("DistanceX", -1, 1, 36, 1, 2.76045),
    Sketcher.Constraint("DistanceY", -1, 1, 39, 1, 1.673609),
    Sketcher.Constraint("DistanceX", -1, 1, 41, 2, 4.040579),
    Sketcher.Constraint("DistanceY", -1, 1, 42, 1, 0.16462),
    Sketcher.Constraint("DistanceY", 43, 1, -1, 1, 0.16462),
    Sketcher.Constraint("DistanceX", -1, 1, 44, 1, 4.040579),
    Sketcher.Constraint("DistanceY", 46, 1, -1, 1, 1.673609),
    Sketcher.Constraint("DistanceX", -1, 1, 49, 2, 2.76045),
    Sketcher.Constraint("DistanceX", -1, 1, 50, 1, 2.746809),
    Sketcher.Constraint("DistanceX", -1, 1, 52, 1, 2.278069),
    Sketcher.Constraint("DistanceX", 13, 3, -1, 1, 3.950738),
    Sketcher.Constraint("DistanceY", -1, 1, 16, 3, 0.158744),
    Sketcher.Constraint("DistanceX", -1, 1, 41, 3, 3.950738),
    Sketcher.Constraint("DistanceY", 44, 3, -1, 1, 0.158744),
    Sketcher.Constraint("DistanceX", 2, 1, -1, 1, 0.773898),
    Sketcher.Constraint("DistanceX", 10, 1, -1, 1, 3.711844),
    Sketcher.Constraint("DistanceX", 19, 1, -1, 1, 3.711844),
    Sketcher.Constraint("DistanceX", 27, 1, -1, 1, 0.773898),
    Sketcher.Constraint("DistanceX", -1, 1, 30, 1, 0.773898),
    Sketcher.Constraint("DistanceX", -1, 1, 38, 1, 3.711844),
    Sketcher.Constraint("DistanceX", -1, 1, 47, 1, 3.711844),
    Sketcher.Constraint("DistanceX", -1, 1, 55, 1, 0.773898),
])
pad1 = doc.addObject("PartDesign::Pad", "Pad")
body.addObject(pad1)
pad1.Profile = sketch1
pad1.Length = 3
pad1.Reversed = True

# Sketch on XZ plane
sketch2 = doc.addObject("Sketcher::SketchObject", "Sketch001")
body.addObject(sketch2)
sketch2.AttachmentSupport = (doc.XZ_Plane, [""])
sketch2.MapMode = "FlatFace"
sketch2.addGeometry(Part.Circle(Vector(0, 0, 0), Vector(0, 0, 1), 0.8), False)
sketch2.addConstraint([
    Sketcher.Constraint("Coincident", 0, 3, -1, 1),
    Sketcher.Constraint("Diameter", 0, 1.5),
])
pad2 = doc.addObject("PartDesign::Pad", "Pad001")
body.addObject(pad2)
pad2.Profile = sketch2
pad2.Length = 3

# Sketch on XZ plane
sketch3 = doc.addObject("Sketcher::SketchObject", "Sketch002")
body.addObject(sketch3)
sketch3.AttachmentSupport = (doc.XZ_Plane, [""])
sketch3.MapMode = "FlatFace"
sketch3.AttachmentOffset = App.Placement(Vector(0, 0, -3), App.Rotation())
sketch3.addGeometry(Part.Circle(Vector(0, 0, 0), Vector(0, 0, 1), 2.5), False)
sketch3.addConstraint([
    Sketcher.Constraint("Coincident", 0, 3, -1, 1),
    Sketcher.Constraint("Diameter", 0, 5.0),
])
pad3 = doc.addObject("PartDesign::Pad", "Pad002")
body.addObject(pad3)
pad3.Profile = sketch3
pad3.Length = 0.5
pad3.Reversed = True

# Sketch on XZ plane
sketch4 = doc.addObject("Sketcher::SketchObject", "Sketch003")
body.addObject(sketch4)
sketch4.AttachmentSupport = (doc.XZ_Plane, [""])
sketch4.MapMode = "FlatFace"
sketch4.AttachmentOffset = App.Placement(Vector(0, 0, -3.5), App.Rotation())
sketch4.addGeometry(Part.Circle(Vector(0, 0, 0), Vector(0, 0, 1), 2), False)
sketch4.addConstraint([
    Sketcher.Constraint("Coincident", 0, 3, -1, 1),
    Sketcher.Constraint("Diameter", 0, 4.0),
])
pad4 = doc.addObject("PartDesign::Pad", "Pad003")
body.addObject(pad4)
pad4.Profile = sketch4
pad4.Length = 2.5
pad4.Reversed = True

doc.recompute()
